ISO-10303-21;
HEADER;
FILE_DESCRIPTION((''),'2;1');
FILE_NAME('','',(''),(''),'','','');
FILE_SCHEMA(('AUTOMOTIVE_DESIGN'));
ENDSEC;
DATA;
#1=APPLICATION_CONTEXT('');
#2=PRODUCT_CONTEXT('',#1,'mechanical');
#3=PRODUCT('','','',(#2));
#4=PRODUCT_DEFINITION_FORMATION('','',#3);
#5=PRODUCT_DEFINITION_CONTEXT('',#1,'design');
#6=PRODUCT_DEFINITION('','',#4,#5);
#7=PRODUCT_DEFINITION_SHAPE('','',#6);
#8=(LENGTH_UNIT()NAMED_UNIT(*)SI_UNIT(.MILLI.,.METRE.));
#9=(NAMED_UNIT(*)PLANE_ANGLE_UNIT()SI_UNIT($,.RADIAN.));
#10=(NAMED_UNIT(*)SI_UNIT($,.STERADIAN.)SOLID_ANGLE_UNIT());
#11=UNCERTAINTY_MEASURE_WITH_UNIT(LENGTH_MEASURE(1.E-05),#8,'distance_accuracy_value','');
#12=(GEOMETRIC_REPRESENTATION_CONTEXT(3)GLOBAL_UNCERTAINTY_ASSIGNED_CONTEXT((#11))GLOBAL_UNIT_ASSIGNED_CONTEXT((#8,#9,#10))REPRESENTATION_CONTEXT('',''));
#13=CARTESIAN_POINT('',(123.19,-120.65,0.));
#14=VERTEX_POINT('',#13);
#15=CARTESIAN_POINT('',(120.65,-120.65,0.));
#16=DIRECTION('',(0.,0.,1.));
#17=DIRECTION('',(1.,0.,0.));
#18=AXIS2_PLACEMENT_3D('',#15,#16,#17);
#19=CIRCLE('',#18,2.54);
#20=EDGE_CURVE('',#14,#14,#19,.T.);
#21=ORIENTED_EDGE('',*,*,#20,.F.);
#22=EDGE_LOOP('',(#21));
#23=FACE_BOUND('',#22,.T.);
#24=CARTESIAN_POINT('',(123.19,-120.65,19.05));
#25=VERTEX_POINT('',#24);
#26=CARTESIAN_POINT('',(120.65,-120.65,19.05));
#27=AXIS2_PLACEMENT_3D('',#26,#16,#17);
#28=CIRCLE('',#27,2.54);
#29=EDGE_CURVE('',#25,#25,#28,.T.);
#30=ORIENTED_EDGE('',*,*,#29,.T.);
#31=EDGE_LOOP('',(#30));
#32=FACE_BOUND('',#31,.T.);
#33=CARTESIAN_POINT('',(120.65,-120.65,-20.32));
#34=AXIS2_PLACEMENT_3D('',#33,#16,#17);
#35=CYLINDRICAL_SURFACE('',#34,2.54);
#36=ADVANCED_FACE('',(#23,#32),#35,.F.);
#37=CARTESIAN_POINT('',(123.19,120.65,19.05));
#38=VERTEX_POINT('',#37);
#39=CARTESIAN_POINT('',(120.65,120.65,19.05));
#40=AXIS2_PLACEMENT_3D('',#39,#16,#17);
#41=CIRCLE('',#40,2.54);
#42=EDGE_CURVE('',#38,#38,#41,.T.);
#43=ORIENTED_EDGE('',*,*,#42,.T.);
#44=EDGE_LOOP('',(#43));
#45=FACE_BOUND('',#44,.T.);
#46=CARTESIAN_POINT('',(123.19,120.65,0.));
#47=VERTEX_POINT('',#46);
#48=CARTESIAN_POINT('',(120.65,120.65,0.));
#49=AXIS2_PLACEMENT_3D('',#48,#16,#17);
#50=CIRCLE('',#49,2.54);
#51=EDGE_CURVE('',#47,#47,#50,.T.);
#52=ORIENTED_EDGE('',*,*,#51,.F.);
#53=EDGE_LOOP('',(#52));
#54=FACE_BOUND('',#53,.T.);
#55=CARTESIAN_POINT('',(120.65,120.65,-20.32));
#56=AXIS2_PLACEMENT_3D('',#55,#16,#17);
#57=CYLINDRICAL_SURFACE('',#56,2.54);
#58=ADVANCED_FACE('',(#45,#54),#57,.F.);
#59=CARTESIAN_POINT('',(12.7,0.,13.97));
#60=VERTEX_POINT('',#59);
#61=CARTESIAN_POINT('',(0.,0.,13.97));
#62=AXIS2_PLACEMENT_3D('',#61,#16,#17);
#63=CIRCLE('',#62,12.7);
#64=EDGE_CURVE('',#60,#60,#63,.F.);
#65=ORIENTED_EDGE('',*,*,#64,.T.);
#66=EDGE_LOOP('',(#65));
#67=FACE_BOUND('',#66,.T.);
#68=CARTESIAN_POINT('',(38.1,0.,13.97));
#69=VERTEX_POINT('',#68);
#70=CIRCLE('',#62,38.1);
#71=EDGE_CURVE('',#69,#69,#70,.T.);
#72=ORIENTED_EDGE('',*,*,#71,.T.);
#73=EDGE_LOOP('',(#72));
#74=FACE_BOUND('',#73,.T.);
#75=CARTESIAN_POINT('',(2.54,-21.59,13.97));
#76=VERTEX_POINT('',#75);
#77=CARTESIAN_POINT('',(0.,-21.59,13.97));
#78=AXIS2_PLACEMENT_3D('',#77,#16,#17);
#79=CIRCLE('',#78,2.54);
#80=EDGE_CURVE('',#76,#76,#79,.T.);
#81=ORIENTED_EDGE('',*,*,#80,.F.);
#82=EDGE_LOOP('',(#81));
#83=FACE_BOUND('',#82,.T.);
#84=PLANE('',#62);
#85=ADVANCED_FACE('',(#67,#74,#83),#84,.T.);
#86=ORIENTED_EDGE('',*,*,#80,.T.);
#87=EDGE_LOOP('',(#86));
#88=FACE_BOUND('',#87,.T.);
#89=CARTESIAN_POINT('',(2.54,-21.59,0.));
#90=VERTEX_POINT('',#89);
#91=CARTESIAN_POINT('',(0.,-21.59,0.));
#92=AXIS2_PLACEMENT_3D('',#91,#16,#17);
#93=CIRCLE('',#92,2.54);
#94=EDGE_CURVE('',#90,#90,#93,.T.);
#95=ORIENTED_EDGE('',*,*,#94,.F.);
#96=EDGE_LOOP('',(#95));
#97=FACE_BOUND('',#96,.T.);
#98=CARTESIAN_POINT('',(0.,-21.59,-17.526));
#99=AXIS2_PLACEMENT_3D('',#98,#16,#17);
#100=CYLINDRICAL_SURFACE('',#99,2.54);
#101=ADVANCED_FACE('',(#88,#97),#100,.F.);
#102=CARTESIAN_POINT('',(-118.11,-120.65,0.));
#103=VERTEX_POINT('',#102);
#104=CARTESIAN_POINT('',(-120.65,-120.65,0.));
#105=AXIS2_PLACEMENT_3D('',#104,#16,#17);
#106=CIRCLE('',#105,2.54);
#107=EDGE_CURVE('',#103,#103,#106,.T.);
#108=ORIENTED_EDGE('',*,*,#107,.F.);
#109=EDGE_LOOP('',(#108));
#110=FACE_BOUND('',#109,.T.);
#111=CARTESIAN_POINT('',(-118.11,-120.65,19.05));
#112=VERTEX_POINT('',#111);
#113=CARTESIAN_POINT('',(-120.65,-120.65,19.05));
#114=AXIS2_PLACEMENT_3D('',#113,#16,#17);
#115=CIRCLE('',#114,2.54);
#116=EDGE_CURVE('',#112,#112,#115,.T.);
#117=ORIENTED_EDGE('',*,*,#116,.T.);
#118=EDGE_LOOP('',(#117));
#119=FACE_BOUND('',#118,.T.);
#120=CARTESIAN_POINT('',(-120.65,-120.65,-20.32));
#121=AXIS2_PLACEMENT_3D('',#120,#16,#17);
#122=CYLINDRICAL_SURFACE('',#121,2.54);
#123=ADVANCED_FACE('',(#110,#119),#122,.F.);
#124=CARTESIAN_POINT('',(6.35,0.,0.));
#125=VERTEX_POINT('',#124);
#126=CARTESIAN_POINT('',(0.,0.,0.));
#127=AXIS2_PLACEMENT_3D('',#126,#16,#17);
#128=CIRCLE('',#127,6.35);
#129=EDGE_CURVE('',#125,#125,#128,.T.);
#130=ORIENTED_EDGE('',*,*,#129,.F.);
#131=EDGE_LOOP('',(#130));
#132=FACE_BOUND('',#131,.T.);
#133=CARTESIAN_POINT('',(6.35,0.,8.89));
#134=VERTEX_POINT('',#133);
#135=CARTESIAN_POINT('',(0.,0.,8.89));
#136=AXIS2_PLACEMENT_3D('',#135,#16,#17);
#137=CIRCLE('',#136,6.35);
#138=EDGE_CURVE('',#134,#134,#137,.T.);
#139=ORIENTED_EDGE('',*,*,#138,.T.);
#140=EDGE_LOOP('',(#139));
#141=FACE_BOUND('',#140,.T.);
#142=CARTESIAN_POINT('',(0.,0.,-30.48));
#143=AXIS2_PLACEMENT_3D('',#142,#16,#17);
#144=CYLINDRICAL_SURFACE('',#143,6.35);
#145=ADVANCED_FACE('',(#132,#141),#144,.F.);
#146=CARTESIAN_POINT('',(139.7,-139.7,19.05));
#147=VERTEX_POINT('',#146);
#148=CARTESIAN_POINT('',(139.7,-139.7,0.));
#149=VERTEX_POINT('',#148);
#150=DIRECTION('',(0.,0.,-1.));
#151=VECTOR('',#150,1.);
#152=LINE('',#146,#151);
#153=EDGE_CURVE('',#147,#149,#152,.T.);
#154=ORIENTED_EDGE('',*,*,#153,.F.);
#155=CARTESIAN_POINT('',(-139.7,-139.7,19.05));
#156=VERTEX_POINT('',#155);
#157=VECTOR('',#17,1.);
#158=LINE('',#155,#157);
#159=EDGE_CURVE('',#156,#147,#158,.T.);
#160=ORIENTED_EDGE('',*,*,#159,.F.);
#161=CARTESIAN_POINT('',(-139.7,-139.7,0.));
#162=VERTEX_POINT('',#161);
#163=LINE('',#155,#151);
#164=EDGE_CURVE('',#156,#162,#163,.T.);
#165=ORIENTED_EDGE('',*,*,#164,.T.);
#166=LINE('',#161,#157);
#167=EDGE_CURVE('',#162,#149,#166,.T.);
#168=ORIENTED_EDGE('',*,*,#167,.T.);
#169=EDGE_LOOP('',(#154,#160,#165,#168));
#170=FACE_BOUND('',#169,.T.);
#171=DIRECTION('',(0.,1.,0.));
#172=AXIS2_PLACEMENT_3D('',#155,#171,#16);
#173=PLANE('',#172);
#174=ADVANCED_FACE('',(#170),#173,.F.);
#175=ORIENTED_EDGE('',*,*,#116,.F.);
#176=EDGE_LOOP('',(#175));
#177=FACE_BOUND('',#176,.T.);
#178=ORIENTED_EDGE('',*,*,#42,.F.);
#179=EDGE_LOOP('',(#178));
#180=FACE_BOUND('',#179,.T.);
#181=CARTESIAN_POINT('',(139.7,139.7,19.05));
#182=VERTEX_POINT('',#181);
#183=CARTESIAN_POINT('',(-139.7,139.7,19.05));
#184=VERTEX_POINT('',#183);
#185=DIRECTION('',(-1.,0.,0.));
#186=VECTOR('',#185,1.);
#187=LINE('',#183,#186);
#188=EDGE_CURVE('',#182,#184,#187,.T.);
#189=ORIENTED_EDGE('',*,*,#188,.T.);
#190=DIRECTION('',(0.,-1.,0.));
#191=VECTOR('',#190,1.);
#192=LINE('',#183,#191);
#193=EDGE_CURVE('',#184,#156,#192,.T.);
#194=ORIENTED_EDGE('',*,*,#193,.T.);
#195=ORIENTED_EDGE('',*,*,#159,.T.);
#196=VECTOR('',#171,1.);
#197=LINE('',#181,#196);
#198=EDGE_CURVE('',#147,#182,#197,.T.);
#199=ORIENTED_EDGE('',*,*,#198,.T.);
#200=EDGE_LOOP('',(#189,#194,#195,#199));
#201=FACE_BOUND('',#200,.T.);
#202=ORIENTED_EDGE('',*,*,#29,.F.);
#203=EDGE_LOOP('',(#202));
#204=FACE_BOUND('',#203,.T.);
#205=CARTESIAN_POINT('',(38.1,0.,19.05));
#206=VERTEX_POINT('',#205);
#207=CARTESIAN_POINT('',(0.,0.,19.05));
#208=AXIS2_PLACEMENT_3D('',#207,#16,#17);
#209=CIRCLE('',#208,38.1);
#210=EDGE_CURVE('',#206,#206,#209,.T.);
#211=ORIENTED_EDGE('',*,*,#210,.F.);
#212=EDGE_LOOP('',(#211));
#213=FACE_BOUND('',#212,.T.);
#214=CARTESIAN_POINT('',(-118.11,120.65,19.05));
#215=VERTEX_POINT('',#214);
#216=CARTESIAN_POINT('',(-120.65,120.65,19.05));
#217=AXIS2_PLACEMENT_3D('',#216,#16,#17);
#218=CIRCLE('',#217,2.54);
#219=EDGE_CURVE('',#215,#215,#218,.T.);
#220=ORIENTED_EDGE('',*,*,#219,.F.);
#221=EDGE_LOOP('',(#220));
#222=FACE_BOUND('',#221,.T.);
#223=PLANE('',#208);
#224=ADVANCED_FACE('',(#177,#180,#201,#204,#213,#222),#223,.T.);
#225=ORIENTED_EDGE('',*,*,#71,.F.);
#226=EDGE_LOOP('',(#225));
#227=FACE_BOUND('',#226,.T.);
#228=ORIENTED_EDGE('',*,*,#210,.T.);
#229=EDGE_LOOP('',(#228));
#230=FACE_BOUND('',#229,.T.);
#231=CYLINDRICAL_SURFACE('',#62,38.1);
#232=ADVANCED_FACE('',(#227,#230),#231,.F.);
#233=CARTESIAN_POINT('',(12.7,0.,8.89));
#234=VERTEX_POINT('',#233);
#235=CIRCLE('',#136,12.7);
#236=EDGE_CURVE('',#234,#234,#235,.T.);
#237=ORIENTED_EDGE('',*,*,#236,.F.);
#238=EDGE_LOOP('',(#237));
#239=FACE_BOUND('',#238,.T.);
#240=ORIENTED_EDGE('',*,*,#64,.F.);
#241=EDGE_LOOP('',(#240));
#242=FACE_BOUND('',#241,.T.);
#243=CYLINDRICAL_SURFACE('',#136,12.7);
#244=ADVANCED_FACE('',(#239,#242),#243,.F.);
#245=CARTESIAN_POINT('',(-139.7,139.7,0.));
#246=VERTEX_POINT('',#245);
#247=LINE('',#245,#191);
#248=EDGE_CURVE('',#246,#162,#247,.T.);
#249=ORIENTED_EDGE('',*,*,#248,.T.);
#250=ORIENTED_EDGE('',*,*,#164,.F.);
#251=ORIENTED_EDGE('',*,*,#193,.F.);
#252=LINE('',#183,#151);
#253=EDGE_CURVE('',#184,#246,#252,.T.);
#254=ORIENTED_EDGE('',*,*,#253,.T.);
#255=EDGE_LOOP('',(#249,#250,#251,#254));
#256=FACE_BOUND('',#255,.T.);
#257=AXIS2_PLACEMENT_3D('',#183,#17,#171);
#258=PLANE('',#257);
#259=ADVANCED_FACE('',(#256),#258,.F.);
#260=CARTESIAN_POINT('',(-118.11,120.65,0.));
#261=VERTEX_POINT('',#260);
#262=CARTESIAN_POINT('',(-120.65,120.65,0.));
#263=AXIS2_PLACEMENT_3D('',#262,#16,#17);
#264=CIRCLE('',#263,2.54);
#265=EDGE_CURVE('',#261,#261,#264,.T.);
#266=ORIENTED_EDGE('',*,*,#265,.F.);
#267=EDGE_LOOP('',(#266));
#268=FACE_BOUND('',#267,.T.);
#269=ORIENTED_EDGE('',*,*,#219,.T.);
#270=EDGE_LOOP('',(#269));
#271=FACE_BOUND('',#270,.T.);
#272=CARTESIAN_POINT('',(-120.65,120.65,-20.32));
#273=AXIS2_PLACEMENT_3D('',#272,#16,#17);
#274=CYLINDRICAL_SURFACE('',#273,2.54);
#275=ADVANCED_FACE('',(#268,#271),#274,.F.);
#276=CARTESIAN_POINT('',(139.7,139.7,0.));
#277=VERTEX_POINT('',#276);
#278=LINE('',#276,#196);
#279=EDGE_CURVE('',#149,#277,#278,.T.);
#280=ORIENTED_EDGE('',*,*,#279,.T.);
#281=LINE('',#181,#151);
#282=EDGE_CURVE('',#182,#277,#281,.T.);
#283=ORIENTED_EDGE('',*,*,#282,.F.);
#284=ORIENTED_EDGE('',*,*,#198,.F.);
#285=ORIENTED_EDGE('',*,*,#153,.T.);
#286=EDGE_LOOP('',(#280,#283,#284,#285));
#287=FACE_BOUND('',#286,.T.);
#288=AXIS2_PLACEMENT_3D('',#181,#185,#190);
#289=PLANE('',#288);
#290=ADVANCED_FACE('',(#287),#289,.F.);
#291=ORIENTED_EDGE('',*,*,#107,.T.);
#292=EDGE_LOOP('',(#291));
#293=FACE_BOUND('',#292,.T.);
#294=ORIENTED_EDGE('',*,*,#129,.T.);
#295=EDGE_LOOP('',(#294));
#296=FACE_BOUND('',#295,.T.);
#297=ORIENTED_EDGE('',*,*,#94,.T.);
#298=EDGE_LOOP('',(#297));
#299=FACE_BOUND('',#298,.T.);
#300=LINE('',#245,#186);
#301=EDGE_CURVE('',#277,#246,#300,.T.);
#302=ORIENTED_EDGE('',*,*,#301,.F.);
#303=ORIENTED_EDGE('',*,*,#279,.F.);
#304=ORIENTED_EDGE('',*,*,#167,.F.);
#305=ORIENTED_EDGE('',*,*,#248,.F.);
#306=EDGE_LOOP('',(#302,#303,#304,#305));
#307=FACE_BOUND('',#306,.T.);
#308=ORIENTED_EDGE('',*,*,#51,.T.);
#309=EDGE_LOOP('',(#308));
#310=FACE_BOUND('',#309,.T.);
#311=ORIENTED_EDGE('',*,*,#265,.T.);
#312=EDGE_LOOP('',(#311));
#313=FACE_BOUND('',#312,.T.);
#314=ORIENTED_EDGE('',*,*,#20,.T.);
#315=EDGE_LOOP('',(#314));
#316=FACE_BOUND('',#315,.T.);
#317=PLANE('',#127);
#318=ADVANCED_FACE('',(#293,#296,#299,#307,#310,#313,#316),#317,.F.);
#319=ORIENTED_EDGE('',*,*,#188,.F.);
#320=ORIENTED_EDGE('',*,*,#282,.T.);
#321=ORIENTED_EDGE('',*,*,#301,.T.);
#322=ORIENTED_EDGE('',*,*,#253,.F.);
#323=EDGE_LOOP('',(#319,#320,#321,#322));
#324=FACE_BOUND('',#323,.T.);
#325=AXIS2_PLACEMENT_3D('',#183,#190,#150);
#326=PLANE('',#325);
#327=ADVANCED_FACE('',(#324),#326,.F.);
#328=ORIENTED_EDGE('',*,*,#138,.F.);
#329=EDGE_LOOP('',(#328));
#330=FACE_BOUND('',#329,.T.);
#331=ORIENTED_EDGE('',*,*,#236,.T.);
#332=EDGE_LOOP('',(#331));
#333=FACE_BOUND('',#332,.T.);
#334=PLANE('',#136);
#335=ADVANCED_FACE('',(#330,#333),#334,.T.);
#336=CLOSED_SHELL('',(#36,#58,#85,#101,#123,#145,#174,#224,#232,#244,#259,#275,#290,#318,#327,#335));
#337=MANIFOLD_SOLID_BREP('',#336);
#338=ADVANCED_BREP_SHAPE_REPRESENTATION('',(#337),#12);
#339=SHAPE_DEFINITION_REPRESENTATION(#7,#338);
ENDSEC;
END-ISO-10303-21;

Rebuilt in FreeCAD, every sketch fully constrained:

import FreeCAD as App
import Part
import Sketcher
Q = App.Units.Quantity

doc = App.newDocument("Part")
params = doc.addObject("Spreadsheet::Sheet", "Params")
for row, (alias, value) in enumerate([
    ("sketch1_width", "11 in"),
    ("pad1_length", "0.75 in"),
    ("sketch2_diameter", "1 in"),
    ("pocket1_length", "0.4 in"),
    ("sketch3_diameter", "3 in"),
    ("pocket2_length", "0.2 in"),
    ("sketch4_diameter", "0.5 in"),
    ("pocket3_length", "1.55 in"),
    ("sketch5_diameter", "0.2 in"),
    ("pocket4_length", "1.55 in"),
    ("sketch6_diameter", "0.2 in"),
    ("pocket5_length", "1.44 in"),
], start=1):
    params.set(f"A{row}", alias)
    params.set(f"B{row}", "=" + value)
    params.setAlias(f"B{row}", alias)

body = doc.addObject("PartDesign::Body", "Body")

sketch1 = body.newObject("Sketcher::SketchObject", "Sketch")
sketch1.AttachmentSupport = (doc.getObject("XY_Plane"), [""])
sketch1.MapMode = "FlatFace"
sketch1.addGeometry(Part.LineSegment(App.Vector(-139.7, 139.7, 0), App.Vector(-139.7, -139.7, 0)), False)
sketch1.addGeometry(Part.LineSegment(App.Vector(-139.7, -139.7, 0), App.Vector(139.7, -139.7, 0)), False)
sketch1.addGeometry(Part.LineSegment(App.Vector(139.7, -139.7, 0), App.Vector(139.7, 139.7, 0)), False)
sketch1.addGeometry(Part.LineSegment(App.Vector(139.7, 139.7, 0), App.Vector(-139.7, 139.7, 0)), False)
sketch1.addConstraint(Sketcher.Constraint("Coincident", 0, 2, 1, 1))
sketch1.addConstraint(Sketcher.Constraint("Coincident", 1, 2, 2, 1))
sketch1.addConstraint(Sketcher.Constraint("Coincident", 2, 2, 3, 1))
sketch1.addConstraint(Sketcher.Constraint("Coincident", 3, 2, 0, 1))
sketch1.addConstraint(Sketcher.Constraint("Vertical", 0))
sketch1.addConstraint(Sketcher.Constraint("Horizontal", 1))
sketch1.addConstraint(Sketcher.Constraint("Vertical", 2))
sketch1.addConstraint(Sketcher.Constraint("Horizontal", 3))
sketch1.addConstraint(Sketcher.Constraint("Symmetric", 0, 2, 2, 2, -1, 1))
sketch1.addConstraint(Sketcher.Constraint("Equal", 3, 0))
sketch1.addConstraint(Sketcher.Constraint("DistanceX", 1, 1, 1, 2, Q("11 in")))
sketch1.setExpression("Constraints[10]", "Params.sketch1_width")
pad1 = body.newObject("PartDesign::Pad", "Pad")
pad1.Profile = sketch1
pad1.setExpression("Length", "Params.pad1_length")

sketch2 = body.newObject("Sketcher::SketchObject", "Sketch001")
sketch2.AttachmentSupport = (doc.getObject("XY_Plane"), [""])
sketch2.MapMode = "FlatFace"
sketch2.AttachmentOffset = App.Placement(App.Vector(0, 0, 0.75 * 25.4), App.Rotation())
sketch2.addGeometry(Part.Circle(App.Vector(0, 0, 0), App.Vector(0, 0, 1), 12.7), False)
sketch2.addConstraint(Sketcher.Constraint("Coincident", 0, 3, -1, 1))
sketch2.addConstraint(Sketcher.Constraint("Diameter", 0, Q("1 in")))
sketch2.setExpression("Constraints[1]", "Params.sketch2_diameter")
pocket1 = body.newObject("PartDesign::Pocket", "Pocket")
pocket1.Profile = sketch2
pocket1.setExpression("Length", "Params.pocket1_length")

sketch3 = body.newObject("Sketcher::SketchObject", "Sketch002")
sketch3.AttachmentSupport = (doc.getObject("XY_Plane"), [""])
sketch3.MapMode = "FlatFace"
sketch3.AttachmentOffset = App.Placement(App.Vector(0, 0, 0.75 * 25.4), App.Rotation())
sketch3.addGeometry(Part.Circle(App.Vector(0, 0, 0), App.Vector(0, 0, 1), 38.1), False)
sketch3.addConstraint(Sketcher.Constraint("Coincident", 0, 3, -1, 1))
sketch3.addConstraint(Sketcher.Constraint("Diameter", 0, Q("3 in")))
sketch3.setExpression("Constraints[1]", "Params.sketch3_diameter")
pocket2 = body.newObject("PartDesign::Pocket", "Pocket001")
pocket2.Profile = sketch3
pocket2.setExpression("Length", "Params.pocket2_length")

sketch4 = body.newObject("Sketcher::SketchObject", "Sketch003")
sketch4.AttachmentSupport = (doc.getObject("XY_Plane"), [""])
sketch4.MapMode = "FlatFace"
sketch4.AttachmentOffset = App.Placement(App.Vector(0, 0, 0.35 * 25.4), App.Rotation())
sketch4.addGeometry(Part.Circle(App.Vector(0, 0, 0), App.Vector(0, 0, 1), 6.35), False)
sketch4.addConstraint(Sketcher.Constraint("Coincident", 0, 3, -1, 1))
sketch4.addConstraint(Sketcher.Constraint("Diameter", 0, Q("0.5 in")))
sketch4.setExpression("Constraints[1]", "Params.sketch4_diameter")
pocket3 = body.newObject("PartDesign::Pocket", "Pocket002")
pocket3.Profile = sketch4
pocket3.setExpression("Length", "Params.pocket3_length")

sketch5 = body.newObject("Sketcher::SketchObject", "Sketch004")
sketch5.AttachmentSupport = (doc.getObject("XY_Plane"), [""])
sketch5.MapMode = "FlatFace"
sketch5.AttachmentOffset = App.Placement(App.Vector(0, 0, 0.75 * 25.4), App.Rotation())
sketch5.addGeometry(Part.Circle(App.Vector(-120.65, -120.65, 0), App.Vector(0, 0, 1), 2.54), False)
sketch5.addGeometry(Part.Circle(App.Vector(-120.65, 120.65, 0), App.Vector(0, 0, 1), 2.54), False)
sketch5.addGeometry(Part.Circle(App.Vector(120.65, 120.65, 0), App.Vector(0, 0, 1), 2.54), False)
sketch5.addGeometry(Part.Circle(App.Vector(120.65, -120.65, 0), App.Vector(0, 0, 1), 2.54), False)
sketch5.addConstraint(Sketcher.Constraint("Equal", 0, 1))
sketch5.addConstraint(Sketcher.Constraint("Equal", 1, 2))
sketch5.addConstraint(Sketcher.Constraint("Equal", 2, 3))
sketch5.addConstraint(Sketcher.Constraint("Symmetric", 0, 3, 2, 3, -1, 1))
sketch5.addConstraint(Sketcher.Constraint("Symmetric", 1, 3, 3, 3, -1, 1))
sketch5.addConstraint(Sketcher.Constraint("Symmetric", 1, 3, 2, 3, -2))
sketch5.addConstraint(Sketcher.Constraint("Diameter", 0, Q("0.2 in")))
sketch5.addConstraint(Sketcher.Constraint("DistanceY", 0, 3, 1, 3, Q("9.5 in")))
sketch5.addConstraint(Sketcher.Constraint("DistanceX", 1, 3, 2, 3, Q("9.5 in")))
sketch5.setExpression("Constraints[6]", "Params.sketch5_diameter")
pocket4 = body.newObject("PartDesign::Pocket", "Pocket003")
pocket4.Profile = sketch5
pocket4.setExpression("Length", "Params.pocket4_length")

sketch6 = body.newObject("Sketcher::SketchObject", "Sketch005")
sketch6.AttachmentSupport = (doc.getObject("XY_Plane"), [""])
sketch6.MapMode = "FlatFace"
sketch6.AttachmentOffset = App.Placement(App.Vector(0, 0, 0.75 * 25.4), App.Rotation())
sketch6.addGeometry(Part.Circle(App.Vector(0, -21.59, 0), App.Vector(0, 0, 1), 2.54), False)
sketch6.addConstraint(Sketcher.Constraint("PointOnObject", 0, 3, -2))
sketch6.addConstraint(Sketcher.Constraint("Diameter", 0, Q("0.2 in")))
sketch6.addConstraint(Sketcher.Constraint("DistanceY", 0, 3, -1, 1, Q("0.85 in")))
sketch6.setExpression("Constraints[1]", "Params.sketch6_diameter")
pocket5 = body.newObject("PartDesign::Pocket", "Pocket004")
pocket5.Profile = sketch6
pocket5.setExpression("Length", "Params.pocket5_length")

doc.recompute()
